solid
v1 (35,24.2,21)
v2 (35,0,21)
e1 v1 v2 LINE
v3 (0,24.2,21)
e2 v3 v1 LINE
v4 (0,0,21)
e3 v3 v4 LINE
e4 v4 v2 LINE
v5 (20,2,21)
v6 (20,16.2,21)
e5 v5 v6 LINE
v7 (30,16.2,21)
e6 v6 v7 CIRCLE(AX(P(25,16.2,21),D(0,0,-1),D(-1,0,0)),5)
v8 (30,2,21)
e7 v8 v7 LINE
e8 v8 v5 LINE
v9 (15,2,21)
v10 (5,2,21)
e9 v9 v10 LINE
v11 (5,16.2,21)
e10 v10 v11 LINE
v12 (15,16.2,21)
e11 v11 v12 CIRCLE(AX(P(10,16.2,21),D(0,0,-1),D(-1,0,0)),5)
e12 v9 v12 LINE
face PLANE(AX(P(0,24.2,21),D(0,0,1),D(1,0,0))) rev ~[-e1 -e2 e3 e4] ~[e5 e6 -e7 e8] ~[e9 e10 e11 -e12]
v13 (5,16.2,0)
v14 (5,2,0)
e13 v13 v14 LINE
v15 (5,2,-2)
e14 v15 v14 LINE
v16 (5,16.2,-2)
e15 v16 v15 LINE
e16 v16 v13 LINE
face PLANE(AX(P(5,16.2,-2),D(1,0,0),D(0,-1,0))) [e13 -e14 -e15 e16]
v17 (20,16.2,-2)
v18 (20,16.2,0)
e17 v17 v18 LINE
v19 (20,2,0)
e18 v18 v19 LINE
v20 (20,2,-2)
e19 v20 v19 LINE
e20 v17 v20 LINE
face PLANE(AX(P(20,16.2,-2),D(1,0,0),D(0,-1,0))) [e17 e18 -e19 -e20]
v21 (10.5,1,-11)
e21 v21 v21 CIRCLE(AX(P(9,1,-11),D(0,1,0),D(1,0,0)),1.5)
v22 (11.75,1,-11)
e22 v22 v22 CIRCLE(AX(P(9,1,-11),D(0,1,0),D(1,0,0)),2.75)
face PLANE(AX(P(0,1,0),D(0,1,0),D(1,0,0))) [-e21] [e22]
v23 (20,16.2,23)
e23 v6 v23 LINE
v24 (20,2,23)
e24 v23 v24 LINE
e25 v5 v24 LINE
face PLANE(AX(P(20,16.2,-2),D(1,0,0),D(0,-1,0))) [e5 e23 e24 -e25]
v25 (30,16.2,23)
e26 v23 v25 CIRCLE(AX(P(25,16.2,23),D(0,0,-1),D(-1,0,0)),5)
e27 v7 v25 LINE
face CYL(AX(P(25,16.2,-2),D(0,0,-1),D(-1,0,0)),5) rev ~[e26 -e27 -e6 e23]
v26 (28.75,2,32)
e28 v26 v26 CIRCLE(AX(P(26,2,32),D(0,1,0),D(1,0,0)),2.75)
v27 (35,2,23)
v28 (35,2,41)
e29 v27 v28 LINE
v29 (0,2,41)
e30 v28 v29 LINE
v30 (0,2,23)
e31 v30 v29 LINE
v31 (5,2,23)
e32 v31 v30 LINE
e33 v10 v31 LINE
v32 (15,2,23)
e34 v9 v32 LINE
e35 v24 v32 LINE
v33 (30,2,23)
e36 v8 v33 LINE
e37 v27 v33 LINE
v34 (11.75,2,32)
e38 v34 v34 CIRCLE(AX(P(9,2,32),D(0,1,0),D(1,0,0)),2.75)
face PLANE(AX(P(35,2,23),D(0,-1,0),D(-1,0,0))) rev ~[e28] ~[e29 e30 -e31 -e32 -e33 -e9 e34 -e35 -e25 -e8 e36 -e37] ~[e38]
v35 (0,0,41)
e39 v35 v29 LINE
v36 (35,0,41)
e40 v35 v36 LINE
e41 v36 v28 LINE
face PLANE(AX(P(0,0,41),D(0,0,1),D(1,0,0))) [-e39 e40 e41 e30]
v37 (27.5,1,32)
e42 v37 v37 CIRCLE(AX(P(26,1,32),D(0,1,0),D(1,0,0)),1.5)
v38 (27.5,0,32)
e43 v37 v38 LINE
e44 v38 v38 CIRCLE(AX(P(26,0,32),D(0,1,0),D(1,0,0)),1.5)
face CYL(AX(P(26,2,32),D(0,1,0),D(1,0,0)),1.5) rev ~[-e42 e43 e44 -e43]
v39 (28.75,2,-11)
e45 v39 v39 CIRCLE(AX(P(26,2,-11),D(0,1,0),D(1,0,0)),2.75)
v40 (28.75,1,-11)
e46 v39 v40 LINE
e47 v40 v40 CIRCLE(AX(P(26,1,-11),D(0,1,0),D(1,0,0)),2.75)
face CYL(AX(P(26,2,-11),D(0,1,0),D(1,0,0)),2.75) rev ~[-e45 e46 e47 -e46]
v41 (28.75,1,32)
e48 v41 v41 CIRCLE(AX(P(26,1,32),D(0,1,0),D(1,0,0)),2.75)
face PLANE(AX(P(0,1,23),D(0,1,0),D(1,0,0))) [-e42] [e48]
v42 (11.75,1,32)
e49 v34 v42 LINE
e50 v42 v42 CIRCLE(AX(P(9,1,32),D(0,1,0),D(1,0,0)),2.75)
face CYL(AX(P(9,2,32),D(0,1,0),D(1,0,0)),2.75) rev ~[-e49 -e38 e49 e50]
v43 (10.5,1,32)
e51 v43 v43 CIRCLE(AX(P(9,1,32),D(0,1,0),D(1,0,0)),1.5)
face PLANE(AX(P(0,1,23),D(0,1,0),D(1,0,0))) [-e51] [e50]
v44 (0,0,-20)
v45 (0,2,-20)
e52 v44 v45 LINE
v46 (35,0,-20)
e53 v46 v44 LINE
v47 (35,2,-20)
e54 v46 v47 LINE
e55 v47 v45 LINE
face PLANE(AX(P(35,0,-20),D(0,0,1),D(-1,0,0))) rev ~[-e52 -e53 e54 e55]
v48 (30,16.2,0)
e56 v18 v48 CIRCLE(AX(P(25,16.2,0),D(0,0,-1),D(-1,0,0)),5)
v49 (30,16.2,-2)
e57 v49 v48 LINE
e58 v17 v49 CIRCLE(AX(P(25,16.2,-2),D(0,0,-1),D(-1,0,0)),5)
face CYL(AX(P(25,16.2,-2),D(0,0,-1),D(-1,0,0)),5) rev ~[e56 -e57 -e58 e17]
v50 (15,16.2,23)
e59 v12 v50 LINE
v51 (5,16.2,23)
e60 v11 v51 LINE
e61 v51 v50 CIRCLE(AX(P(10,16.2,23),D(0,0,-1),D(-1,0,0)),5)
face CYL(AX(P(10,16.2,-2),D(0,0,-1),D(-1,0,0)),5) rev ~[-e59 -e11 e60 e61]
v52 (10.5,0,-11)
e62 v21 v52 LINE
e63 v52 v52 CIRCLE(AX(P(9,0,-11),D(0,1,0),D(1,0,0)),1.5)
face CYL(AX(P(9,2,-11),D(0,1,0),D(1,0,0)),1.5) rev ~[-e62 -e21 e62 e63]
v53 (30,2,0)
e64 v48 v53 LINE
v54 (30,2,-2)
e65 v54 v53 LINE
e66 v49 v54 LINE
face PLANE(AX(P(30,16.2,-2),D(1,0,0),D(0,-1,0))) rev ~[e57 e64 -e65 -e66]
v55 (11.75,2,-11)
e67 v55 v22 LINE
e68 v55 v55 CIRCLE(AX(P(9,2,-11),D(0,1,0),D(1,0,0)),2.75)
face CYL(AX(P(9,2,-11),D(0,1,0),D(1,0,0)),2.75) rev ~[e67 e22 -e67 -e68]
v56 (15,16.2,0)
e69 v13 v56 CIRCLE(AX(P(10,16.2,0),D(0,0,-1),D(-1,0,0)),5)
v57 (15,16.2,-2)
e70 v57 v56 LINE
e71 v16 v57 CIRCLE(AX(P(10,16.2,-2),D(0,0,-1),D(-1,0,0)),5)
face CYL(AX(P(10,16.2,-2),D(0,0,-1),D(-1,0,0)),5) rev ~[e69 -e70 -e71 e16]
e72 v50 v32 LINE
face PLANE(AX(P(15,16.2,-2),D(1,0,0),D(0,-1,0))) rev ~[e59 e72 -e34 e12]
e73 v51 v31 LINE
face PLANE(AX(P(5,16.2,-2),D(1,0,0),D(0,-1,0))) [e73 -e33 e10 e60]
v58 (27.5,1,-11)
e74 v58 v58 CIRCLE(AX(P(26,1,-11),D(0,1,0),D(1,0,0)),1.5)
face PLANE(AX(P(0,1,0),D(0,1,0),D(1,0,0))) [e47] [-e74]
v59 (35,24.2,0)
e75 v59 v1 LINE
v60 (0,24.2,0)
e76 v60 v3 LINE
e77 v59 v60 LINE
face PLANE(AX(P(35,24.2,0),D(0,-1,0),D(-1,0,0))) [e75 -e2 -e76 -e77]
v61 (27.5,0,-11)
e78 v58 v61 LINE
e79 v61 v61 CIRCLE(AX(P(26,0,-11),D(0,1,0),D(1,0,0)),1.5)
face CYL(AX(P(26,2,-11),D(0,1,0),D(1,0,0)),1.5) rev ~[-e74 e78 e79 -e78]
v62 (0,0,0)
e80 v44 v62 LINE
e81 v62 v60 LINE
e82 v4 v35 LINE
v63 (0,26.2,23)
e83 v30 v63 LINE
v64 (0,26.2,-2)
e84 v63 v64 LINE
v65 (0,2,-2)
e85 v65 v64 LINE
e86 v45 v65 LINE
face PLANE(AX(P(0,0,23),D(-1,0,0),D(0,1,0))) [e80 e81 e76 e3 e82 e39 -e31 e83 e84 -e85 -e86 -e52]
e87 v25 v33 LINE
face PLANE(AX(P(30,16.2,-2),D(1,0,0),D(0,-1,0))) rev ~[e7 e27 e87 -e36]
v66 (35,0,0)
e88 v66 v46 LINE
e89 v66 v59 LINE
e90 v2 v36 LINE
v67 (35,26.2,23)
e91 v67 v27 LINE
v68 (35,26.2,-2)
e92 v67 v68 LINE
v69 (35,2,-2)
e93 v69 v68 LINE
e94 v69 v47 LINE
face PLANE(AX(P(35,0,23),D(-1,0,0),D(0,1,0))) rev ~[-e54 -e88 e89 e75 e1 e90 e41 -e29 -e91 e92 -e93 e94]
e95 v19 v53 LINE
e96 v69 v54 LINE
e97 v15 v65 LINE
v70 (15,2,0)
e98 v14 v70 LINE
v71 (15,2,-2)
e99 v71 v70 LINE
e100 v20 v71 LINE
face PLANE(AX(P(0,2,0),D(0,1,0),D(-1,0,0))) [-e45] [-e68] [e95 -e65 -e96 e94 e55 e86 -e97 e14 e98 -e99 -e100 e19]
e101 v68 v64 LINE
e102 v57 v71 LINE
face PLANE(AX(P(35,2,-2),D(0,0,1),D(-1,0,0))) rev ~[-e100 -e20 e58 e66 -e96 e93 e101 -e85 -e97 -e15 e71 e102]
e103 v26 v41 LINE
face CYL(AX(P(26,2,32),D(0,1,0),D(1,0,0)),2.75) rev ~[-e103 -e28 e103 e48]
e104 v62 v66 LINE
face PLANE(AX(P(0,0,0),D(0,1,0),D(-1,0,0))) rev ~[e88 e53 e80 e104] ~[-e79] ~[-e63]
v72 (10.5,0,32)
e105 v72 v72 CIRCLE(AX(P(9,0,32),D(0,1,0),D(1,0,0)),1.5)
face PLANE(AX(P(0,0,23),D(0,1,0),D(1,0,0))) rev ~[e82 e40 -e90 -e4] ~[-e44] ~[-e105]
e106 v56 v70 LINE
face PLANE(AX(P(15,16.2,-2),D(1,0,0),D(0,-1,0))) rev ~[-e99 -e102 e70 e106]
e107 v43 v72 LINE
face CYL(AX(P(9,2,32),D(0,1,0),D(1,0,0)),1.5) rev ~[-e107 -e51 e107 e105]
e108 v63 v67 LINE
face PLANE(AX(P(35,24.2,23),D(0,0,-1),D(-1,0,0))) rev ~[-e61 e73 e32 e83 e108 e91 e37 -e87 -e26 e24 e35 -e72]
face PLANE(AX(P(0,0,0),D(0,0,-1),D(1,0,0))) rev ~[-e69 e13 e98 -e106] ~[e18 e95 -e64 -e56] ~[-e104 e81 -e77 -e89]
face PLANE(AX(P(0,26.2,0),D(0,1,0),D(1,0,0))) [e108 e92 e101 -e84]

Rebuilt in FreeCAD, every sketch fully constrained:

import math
import FreeCAD as App
import Part
import Sketcher

V = App.Vector

doc = App.newDocument("Part")
body = doc.addObject("PartDesign::Body", "Body")

# Sketch on XZ plane
sketch1 = body.newObject("Sketcher::SketchObject", "Sketch")
sketch1.AttachmentSupport = (doc.getObject("XZ_Plane"), [""])
sketch1.MapMode = "FlatFace"
sketch1.addGeometry([
    Part.LineSegment(V(0, -20, 0), V(0, 0, 0)),
    Part.LineSegment(V(0, 0, 0), V(35, 0, 0)),
    Part.LineSegment(V(35, 0, 0), V(35, -20, 0)),
    Part.LineSegment(V(35, -20, 0), V(0, -20, 0)),
], False)
sketch1.addConstraint([
    Sketcher.Constraint("Coincident", 0, 2, 1, 1),
    Sketcher.Constraint("Coincident", 1, 2, 2, 1),
    Sketcher.Constraint("Coincident", 2, 2, 3, 1),
    Sketcher.Constraint("Coincident", 3, 2, 0, 1),
    Sketcher.Constraint("Vertical", 0),
    Sketcher.Constraint("Horizontal", 1),
    Sketcher.Constraint("Vertical", 2),
    Sketcher.Constraint("Horizontal", 3),
    Sketcher.Constraint("Coincident", 0, 2, -1, 1),
    Sketcher.Constraint("DistanceX", 1, 1, 1, 2, 35.0),
    Sketcher.Constraint("DistanceY", 0, 1, 0, 2, 20.0),
])
pad1 = body.newObject("PartDesign::Pad", "Pad")
pad1.Profile = sketch1
pad1.Length = 2
pad1.Reversed = True

# Sketch on XZ plane
sketch2 = body.newObject("Sketcher::SketchObject", "Sketch001")
sketch2.AttachmentSupport = (doc.getObject("XZ_Plane"), [""])
sketch2.MapMode = "FlatFace"
sketch2.AttachmentOffset = App.Placement(V(0, 0, -2), App.Rotation())
sketch2.addGeometry([
    Part.LineSegment(V(35, -2, 0), V(0, -2, 0)),
    Part.LineSegment(V(0, -2, 0), V(0, 0, 0)),
    Part.LineSegment(V(0, 0, 0), V(35, 0, 0)),
    Part.LineSegment(V(35, 0, 0), V(35, -2, 0)),
], False)
sketch2.addConstraint([
    Sketcher.Constraint("Coincident", 0, 2, 1, 1),
    Sketcher.Constraint("Coincident", 1, 2, 2, 1),
    Sketcher.Constraint("Coincident", 2, 2, 3, 1),
    Sketcher.Constraint("Coincident", 3, 2, 0, 1),
    Sketcher.Constraint("Horizontal", 0),
    Sketcher.Constraint("Vertical", 1),
    Sketcher.Constraint("Horizontal", 2),
    Sketcher.Constraint("Vertical", 3),
    Sketcher.Constraint("Coincident", 1, 2, -1, 1),
    Sketcher.Constraint("DistanceY", 1, 1, 1, 2, 2.0),
    Sketcher.Constraint("DistanceX", 0, 2, 0, 1, 35.0),
])
pad2 = body.newObject("PartDesign::Pad", "Pad001")
pad2.Profile = sketch2
pad2.Length = 24.2
pad2.Reversed = True

# Sketch on XY plane
sketch3 = body.newObject("Sketcher::SketchObject", "Sketch002")
sketch3.AttachmentSupport = (doc.getObject("XY_Plane"), [""])
sketch3.MapMode = "FlatFace"
sketch3.addGeometry([
    Part.LineSegment(V(0, 26.2, 0), V(0, 24.2, 0)),
    Part.LineSegment(V(0, 24.2, 0), V(35, 24.2, 0)),
    Part.LineSegment(V(35, 24.2, 0), V(35, 26.2, 0)),
    Part.LineSegment(V(35, 26.2, 0), V(0, 26.2, 0)),
], False)
sketch3.addConstraint([
    Sketcher.Constraint("Coincident", 0, 2, 1, 1),
    Sketcher.Constraint("Coincident", 1, 2, 2, 1),
    Sketcher.Constraint("Coincident", 2, 2, 3, 1),
    Sketcher.Constraint("Coincident", 3, 2, 0, 1),
    Sketcher.Constraint("Vertical", 0),
    Sketcher.Constraint("Horizontal", 1),
    Sketcher.Constraint("Vertical", 2),
    Sketcher.Constraint("Horizontal", 3),
    Sketcher.Constraint("PointOnObject", 0, 2, -2),
    Sketcher.Constraint("DistanceY", 0, 2, 0, 1, 2.0),
    Sketcher.Constraint("DistanceX", 1, 1, 1, 2, 35.0),
    Sketcher.Constraint("DistanceY", -1, 1, 0, 2, 24.2),
])
pad3 = body.newObject("PartDesign::Pad", "Pad002")
pad3.Profile = sketch3
pad3.Length = 23

# Sketch on XZ plane
sketch4 = body.newObject("Sketcher::SketchObject", "Sketch003")
sketch4.AttachmentSupport = (doc.getObject("XZ_Plane"), [""])
sketch4.MapMode = "FlatFace"
sketch4.AttachmentOffset = App.Placement(V(0, 0, -24.2), App.Rotation())
sketch4.addGeometry([
    Part.LineSegment(V(0, 21, 0), V(35, 21, 0)),
    Part.LineSegment(V(35, 21, 0), V(35, 23, 0)),
    Part.LineSegment(V(35, 23, 0), V(0, 23, 0)),
    Part.LineSegment(V(0, 23, 0), V(0, 21, 0)),
], False)
sketch4.addConstraint([
    Sketcher.Constraint("Coincident", 0, 2, 1, 1),
    Sketcher.Constraint("Coincident", 1, 2, 2, 1),
    Sketcher.Constraint("Coincident", 2, 2, 3, 1),
    Sketcher.Constraint("Coincident", 3, 2, 0, 1),
    Sketcher.Constraint("Horizontal", 0),
    Sketcher.Constraint("Vertical", 1),
    Sketcher.Constraint("Horizontal", 2),
    Sketcher.Constraint("Vertical", 3),
    Sketcher.Constraint("PointOnObject", 2, 2, -2),
    Sketcher.Constraint("DistanceY", 1, 1, 1, 2, 2.0),
    Sketcher.Constraint("DistanceX", 0, 1, 0, 2, 35.0),
    Sketcher.Constraint("DistanceY", -1, 1, 0, 2, 21.0),
])
pad4 = body.newObject("PartDesign::Pad", "Pad003")
pad4.Profile = sketch4
pad4.Length = 24.2

# Sketch on XY plane
sketch5 = body.newObject("Sketcher::SketchObject", "Sketch004")
sketch5.AttachmentSupport = (doc.getObject("XY_Plane"), [""])
sketch5.MapMode = "FlatFace"
sketch5.AttachmentOffset = App.Placement(V(0, 0, 23), App.Rotation())
sketch5.addGeometry([
    Part.LineSegment(V(0, 2, 0), V(0, 0, 0)),
    Part.LineSegment(V(0, 0, 0), V(35, 0, 0)),
    Part.LineSegment(V(35, 0, 0), V(35, 2, 0)),
    Part.LineSegment(V(35, 2, 0), V(0, 2, 0)),
], False)
sketch5.addConstraint([
    Sketcher.Constraint("Coincident", 0, 2, 1, 1),
    Sketcher.Constraint("Coincident", 1, 2, 2, 1),
    Sketcher.Constraint("Coincident", 2, 2, 3, 1),
    Sketcher.Constraint("Coincident", 3, 2, 0, 1),
    Sketcher.Constraint("Vertical", 0),
    Sketcher.Constraint("Horizontal", 1),
    Sketcher.Constraint("Vertical", 2),
    Sketcher.Constraint("Horizontal", 3),
    Sketcher.Constraint("Coincident", 0, 2, -1, 1),
    Sketcher.Constraint("DistanceX", 1, 1, 1, 2, 35.0),
    Sketcher.Constraint("DistanceY", 0, 2, 0, 1, 2.0),
])
pad5 = body.newObject("PartDesign::Pad", "Pad004")
pad5.Profile = sketch5
pad5.Length = 18

# Sketch on XZ plane
sketch6 = body.newObject("Sketcher::SketchObject", "Sketch005")
sketch6.AttachmentSupport = (doc.getObject("XZ_Plane"), [""])
sketch6.MapMode = "FlatFace"
sketch6.AttachmentOffset = App.Placement(V(0, 0, -2), App.Rotation())
sketch6.addGeometry([
    Part.Circle(V(26, -11, 0), V(0, 0, 1), 1.5),
    Part.Circle(V(9, -11, 0), V(0, 0, 1), 1.5),
], False)
sketch6.addConstraint([
    Sketcher.Constraint("Equal", 0, 1),
    Sketcher.Constraint("Horizontal", 0, 3, 1, 3),
    Sketcher.Constraint("Diameter", 0, 3.0),
    Sketcher.Constraint("DistanceX", -1, 1, 1, 3, 9.0),
    Sketcher.Constraint("DistanceX", 1, 3, 0, 3, 17.0),
    Sketcher.Constraint("DistanceY", 0, 3, -1, 1, 11.0),
])
pocket1 = body.newObject("PartDesign::Pocket", "Pocket")
pocket1.Profile = sketch6
pocket1.Length = 2
pocket1.Reversed = True

# Sketch on XZ plane
sketch7 = body.newObject("Sketcher::SketchObject", "Sketch006")
sketch7.AttachmentSupport = (doc.getObject("XZ_Plane"), [""])
sketch7.MapMode = "FlatFace"
sketch7.AttachmentOffset = App.Placement(V(0, 0, -2), App.Rotation())
sketch7.addGeometry([
    Part.Circle(V(26, -11, 0), V(0, 0, 1), 2.8),
    Part.Circle(V(26, -11, 0), V(0, 0, 1), 1.5),
    Part.Circle(V(9, -11, 0), V(0, 0, 1), 2.8),
    Part.Circle(V(9, -11, 0), V(0, 0, 1), 1.5),
], False)
sketch7.addConstraint([
    Sketcher.Constraint("Coincident", 1, 3, 0, 3),
    Sketcher.Constraint("Coincident", 3, 3, 2, 3),
    Sketcher.Constraint("Equal", 0, 2),
    Sketcher.Constraint("Equal", 1, 3),
    Sketcher.Constraint("Horizontal", 1, 3, 2, 3),
    Sketcher.Constraint("Diameter", 1, 3.0),
    Sketcher.Constraint("Diameter", 0, 5.5),
    Sketcher.Constraint("DistanceX", -1, 1, 2, 3, 9.0),
    Sketcher.Constraint("DistanceX", 2, 3, 0, 3, 17.0),
    Sketcher.Constraint("DistanceY", 0, 3, -1, 1, 11.0),
])
pocket2 = body.newObject("PartDesign::Pocket", "Pocket001")
pocket2.Profile = sketch7
pocket2.Length = 1
pocket2.Reversed = True

# Sketch on XZ plane
sketch8 = body.newObject("Sketcher::SketchObject", "Sketch007")
sketch8.AttachmentSupport = (doc.getObject("XZ_Plane"), [""])
sketch8.MapMode = "FlatFace"
sketch8.AttachmentOffset = App.Placement(V(0, 0, -2), App.Rotation())
sketch8.addGeometry([
    Part.Circle(V(26, 32, 0), V(0, 0, 1), 1.5),
    Part.Circle(V(9, 32, 0), V(0, 0, 1), 1.5),
], False)
sketch8.addConstraint([
    Sketcher.Constraint("Equal", 0, 1),
    Sketcher.Constraint("Horizontal", 0, 3, 1, 3),
    Sketcher.Constraint("Diameter", 0, 3.0),
    Sketcher.Constraint("DistanceX", -1, 1, 1, 3, 9.0),
    Sketcher.Constraint("DistanceX", 1, 3, 0, 3, 17.0),
    Sketcher.Constraint("DistanceY", -1, 1, 0, 3, 32.0),
])
pocket3 = body.newObject("PartDesign::Pocket", "Pocket002")
pocket3.Profile = sketch8
pocket3.Length = 2
pocket3.Reversed = True

# Sketch on XZ plane
sketch9 = body.newObject("Sketcher::SketchObject", "Sketch008")
sketch9.AttachmentSupport = (doc.getObject("XZ_Plane"), [""])
sketch9.MapMode = "FlatFace"
sketch9.AttachmentOffset = App.Placement(V(0, 0, -2), App.Rotation())
sketch9.addGeometry([
    Part.Circle(V(26, 32, 0), V(0, 0, 1), 2.8),
    Part.Circle(V(26, 32, 0), V(0, 0, 1), 1.5),
    Part.Circle(V(9, 32, 0), V(0, 0, 1), 2.8),
    Part.Circle(V(9, 32, 0), V(0, 0, 1), 1.5),
], False)
sketch9.addConstraint([
    Sketcher.Constraint("Coincident", 1, 3, 0, 3),
    Sketcher.Constraint("Coincident", 3, 3, 2, 3),
    Sketcher.Constraint("Equal", 0, 2),
    Sketcher.Constraint("Equal", 1, 3),
    Sketcher.Constraint("Horizontal", 1, 3, 2, 3),
    Sketcher.Constraint("Diameter", 1, 3.0),
    Sketcher.Constraint("Diameter", 0, 5.5),
    Sketcher.Constraint("DistanceX", -1, 1, 2, 3, 9.0),
    Sketcher.Constraint("DistanceX", 2, 3, 0, 3, 17.0),
    Sketcher.Constraint("DistanceY", -1, 1, 0, 3, 32.0),
])
pocket4 = body.newObject("PartDesign::Pocket", "Pocket003")
pocket4.Profile = sketch9
pocket4.Length = 1
pocket4.Reversed = True

# Sketch on XY plane
sketch10 = body.newObject("Sketcher::SketchObject", "Sketch009")
sketch10.AttachmentSupport = (doc.getObject("XY_Plane"), [""])
sketch10.MapMode = "FlatFace"
sketch10.AttachmentOffset = App.Placement(V(0, 0, -2), App.Rotation())
sketch10.addGeometry([
    Part.LineSegment(V(20, 2, 0), V(20, 16, 0)),  # 0
    Part.ArcOfCircle(Part.Circle(V(25, 16, 0), V(0, 0, 1), 5), math.radians(0), math.radians(180)),  # 1
    Part.LineSegment(V(30, 16, 0), V(30, 2, 0)),  # 2
    Part.LineSegment(V(30, 2, 0), V(20, 2, 0)),  # 3
    Part.LineSegment(V(15, 16, 0), V(15, 2, 0)),  # 4
    Part.LineSegment(V(15, 2, 0), V(5, 2, 0)),  # 5
    Part.LineSegment(V(5, 2, 0), V(5, 16, 0)),  # 6
    Part.ArcOfCircle(Part.Circle(V(10, 16, 0), V(0, 0, 1), 5), math.radians(0), math.radians(180)),  # 7
], False)
sketch10.addConstraint([
    Sketcher.Constraint("Tangent", 0, 2, 1, 2),
    Sketcher.Constraint("Tangent", 1, 1, 2, 1),
    Sketcher.Constraint("Coincident", 2, 2, 3, 1),
    Sketcher.Constraint("Coincident", 3, 2, 0, 1),
    Sketcher.Constraint("Coincident", 4, 2, 5, 1),
    Sketcher.Constraint("Coincident", 5, 2, 6, 1),
    Sketcher.Constraint("Tangent", 6, 2, 7, 2),
    Sketcher.Constraint("Tangent", 7, 1, 4, 1),
    Sketcher.Constraint("Vertical", 0),
    Sketcher.Constraint("Vertical", 2),
    Sketcher.Constraint("Horizontal", 3),
    Sketcher.Constraint("Vertical", 4),
    Sketcher.Constraint("Horizontal", 5),
    Sketcher.Constraint("Vertical", 6),
    Sketcher.Constraint("Equal", 1, 7),
    Sketcher.Constraint("Horizontal", 1, 3, 7, 3),
    Sketcher.Constraint("Horizontal", 3, 2, 4, 2),
    Sketcher.Constraint("Radius", 1, 5.0),
    Sketcher.Constraint("DistanceX", -1, 1, 7, 3, 10.0),
    Sketcher.Constraint("DistanceX", 7, 3, 0, 2, 10.0),
    Sketcher.Constraint("DistanceY", 0, 1, 0, 2, 14.2),
    Sketcher.Constraint("DistanceY", -1, 1, 2, 2, 2.0),
])
pocket5 = body.newObject("PartDesign::Pocket", "Pocket004")
pocket5.Profile = sketch10
pocket5.Length = 25
pocket5.Reversed = True

doc.recompute()
